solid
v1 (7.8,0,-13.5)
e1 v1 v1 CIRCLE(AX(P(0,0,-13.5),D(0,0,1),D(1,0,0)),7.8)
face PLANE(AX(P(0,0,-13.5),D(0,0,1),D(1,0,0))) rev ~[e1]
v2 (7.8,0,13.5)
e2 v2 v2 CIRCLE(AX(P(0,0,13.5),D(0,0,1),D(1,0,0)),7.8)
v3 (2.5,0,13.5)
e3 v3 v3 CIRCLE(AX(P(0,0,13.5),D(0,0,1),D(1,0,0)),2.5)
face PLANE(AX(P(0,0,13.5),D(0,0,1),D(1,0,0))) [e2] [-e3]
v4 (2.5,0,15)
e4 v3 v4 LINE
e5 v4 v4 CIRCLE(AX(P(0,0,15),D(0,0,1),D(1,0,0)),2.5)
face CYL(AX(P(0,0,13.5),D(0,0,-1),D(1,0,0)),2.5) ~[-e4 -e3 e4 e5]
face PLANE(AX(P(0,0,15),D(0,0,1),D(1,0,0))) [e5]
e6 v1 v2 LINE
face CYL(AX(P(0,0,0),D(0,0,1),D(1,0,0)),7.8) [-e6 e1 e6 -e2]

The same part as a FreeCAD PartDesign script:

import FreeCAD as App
import Part
import Sketcher
from FreeCAD import Vector
Q = App.Units.Quantity

doc = App.newDocument("Part")
body = doc.addObject("PartDesign::Body", "Body")

# Sketch on XY plane
sketch1 = body.newObject("Sketcher::SketchObject", "Sketch")
sketch1.AttachmentSupport = (doc.getObject("XY_Plane"), [""])
sketch1.MapMode = "FlatFace"
sketch1.addGeometry(Part.Circle(Vector(0, 0, 0), Vector(0, 0, 1), 8), False)
sketch1.addConstraint([
    Sketcher.Constraint("Coincident", 0, 3, -1, 1),
    Sketcher.Constraint("Diameter", 0, Q("15.6 mm")),
])
pad1 = body.newObject("PartDesign::Pad", "Pad")
pad1.Profile = sketch1
pad1.Length = 27
pad1.Midplane = True

# Sketch on XY plane
sketch2 = body.newObject("Sketcher::SketchObject", "Sketch001")
sketch2.AttachmentSupport = (doc.getObject("XY_Plane"), [""])
sketch2.MapMode = "FlatFace"
sketch2.AttachmentOffset = App.Placement(Vector(0, 0, 13.5), App.Rotation())
sketch2.addGeometry(Part.Circle(Vector(0, 0, 0), Vector(0, 0, 1), 2.5), False)
sketch2.addConstraint([
    Sketcher.Constraint("Coincident", 0, 3, -1, 1),
    Sketcher.Constraint("Diameter", 0, Q("5 mm")),
])
pad2 = body.newObject("PartDesign::Pad", "Pad001")
pad2.Profile = sketch2
pad2.Length = 1.5

doc.recompute()
